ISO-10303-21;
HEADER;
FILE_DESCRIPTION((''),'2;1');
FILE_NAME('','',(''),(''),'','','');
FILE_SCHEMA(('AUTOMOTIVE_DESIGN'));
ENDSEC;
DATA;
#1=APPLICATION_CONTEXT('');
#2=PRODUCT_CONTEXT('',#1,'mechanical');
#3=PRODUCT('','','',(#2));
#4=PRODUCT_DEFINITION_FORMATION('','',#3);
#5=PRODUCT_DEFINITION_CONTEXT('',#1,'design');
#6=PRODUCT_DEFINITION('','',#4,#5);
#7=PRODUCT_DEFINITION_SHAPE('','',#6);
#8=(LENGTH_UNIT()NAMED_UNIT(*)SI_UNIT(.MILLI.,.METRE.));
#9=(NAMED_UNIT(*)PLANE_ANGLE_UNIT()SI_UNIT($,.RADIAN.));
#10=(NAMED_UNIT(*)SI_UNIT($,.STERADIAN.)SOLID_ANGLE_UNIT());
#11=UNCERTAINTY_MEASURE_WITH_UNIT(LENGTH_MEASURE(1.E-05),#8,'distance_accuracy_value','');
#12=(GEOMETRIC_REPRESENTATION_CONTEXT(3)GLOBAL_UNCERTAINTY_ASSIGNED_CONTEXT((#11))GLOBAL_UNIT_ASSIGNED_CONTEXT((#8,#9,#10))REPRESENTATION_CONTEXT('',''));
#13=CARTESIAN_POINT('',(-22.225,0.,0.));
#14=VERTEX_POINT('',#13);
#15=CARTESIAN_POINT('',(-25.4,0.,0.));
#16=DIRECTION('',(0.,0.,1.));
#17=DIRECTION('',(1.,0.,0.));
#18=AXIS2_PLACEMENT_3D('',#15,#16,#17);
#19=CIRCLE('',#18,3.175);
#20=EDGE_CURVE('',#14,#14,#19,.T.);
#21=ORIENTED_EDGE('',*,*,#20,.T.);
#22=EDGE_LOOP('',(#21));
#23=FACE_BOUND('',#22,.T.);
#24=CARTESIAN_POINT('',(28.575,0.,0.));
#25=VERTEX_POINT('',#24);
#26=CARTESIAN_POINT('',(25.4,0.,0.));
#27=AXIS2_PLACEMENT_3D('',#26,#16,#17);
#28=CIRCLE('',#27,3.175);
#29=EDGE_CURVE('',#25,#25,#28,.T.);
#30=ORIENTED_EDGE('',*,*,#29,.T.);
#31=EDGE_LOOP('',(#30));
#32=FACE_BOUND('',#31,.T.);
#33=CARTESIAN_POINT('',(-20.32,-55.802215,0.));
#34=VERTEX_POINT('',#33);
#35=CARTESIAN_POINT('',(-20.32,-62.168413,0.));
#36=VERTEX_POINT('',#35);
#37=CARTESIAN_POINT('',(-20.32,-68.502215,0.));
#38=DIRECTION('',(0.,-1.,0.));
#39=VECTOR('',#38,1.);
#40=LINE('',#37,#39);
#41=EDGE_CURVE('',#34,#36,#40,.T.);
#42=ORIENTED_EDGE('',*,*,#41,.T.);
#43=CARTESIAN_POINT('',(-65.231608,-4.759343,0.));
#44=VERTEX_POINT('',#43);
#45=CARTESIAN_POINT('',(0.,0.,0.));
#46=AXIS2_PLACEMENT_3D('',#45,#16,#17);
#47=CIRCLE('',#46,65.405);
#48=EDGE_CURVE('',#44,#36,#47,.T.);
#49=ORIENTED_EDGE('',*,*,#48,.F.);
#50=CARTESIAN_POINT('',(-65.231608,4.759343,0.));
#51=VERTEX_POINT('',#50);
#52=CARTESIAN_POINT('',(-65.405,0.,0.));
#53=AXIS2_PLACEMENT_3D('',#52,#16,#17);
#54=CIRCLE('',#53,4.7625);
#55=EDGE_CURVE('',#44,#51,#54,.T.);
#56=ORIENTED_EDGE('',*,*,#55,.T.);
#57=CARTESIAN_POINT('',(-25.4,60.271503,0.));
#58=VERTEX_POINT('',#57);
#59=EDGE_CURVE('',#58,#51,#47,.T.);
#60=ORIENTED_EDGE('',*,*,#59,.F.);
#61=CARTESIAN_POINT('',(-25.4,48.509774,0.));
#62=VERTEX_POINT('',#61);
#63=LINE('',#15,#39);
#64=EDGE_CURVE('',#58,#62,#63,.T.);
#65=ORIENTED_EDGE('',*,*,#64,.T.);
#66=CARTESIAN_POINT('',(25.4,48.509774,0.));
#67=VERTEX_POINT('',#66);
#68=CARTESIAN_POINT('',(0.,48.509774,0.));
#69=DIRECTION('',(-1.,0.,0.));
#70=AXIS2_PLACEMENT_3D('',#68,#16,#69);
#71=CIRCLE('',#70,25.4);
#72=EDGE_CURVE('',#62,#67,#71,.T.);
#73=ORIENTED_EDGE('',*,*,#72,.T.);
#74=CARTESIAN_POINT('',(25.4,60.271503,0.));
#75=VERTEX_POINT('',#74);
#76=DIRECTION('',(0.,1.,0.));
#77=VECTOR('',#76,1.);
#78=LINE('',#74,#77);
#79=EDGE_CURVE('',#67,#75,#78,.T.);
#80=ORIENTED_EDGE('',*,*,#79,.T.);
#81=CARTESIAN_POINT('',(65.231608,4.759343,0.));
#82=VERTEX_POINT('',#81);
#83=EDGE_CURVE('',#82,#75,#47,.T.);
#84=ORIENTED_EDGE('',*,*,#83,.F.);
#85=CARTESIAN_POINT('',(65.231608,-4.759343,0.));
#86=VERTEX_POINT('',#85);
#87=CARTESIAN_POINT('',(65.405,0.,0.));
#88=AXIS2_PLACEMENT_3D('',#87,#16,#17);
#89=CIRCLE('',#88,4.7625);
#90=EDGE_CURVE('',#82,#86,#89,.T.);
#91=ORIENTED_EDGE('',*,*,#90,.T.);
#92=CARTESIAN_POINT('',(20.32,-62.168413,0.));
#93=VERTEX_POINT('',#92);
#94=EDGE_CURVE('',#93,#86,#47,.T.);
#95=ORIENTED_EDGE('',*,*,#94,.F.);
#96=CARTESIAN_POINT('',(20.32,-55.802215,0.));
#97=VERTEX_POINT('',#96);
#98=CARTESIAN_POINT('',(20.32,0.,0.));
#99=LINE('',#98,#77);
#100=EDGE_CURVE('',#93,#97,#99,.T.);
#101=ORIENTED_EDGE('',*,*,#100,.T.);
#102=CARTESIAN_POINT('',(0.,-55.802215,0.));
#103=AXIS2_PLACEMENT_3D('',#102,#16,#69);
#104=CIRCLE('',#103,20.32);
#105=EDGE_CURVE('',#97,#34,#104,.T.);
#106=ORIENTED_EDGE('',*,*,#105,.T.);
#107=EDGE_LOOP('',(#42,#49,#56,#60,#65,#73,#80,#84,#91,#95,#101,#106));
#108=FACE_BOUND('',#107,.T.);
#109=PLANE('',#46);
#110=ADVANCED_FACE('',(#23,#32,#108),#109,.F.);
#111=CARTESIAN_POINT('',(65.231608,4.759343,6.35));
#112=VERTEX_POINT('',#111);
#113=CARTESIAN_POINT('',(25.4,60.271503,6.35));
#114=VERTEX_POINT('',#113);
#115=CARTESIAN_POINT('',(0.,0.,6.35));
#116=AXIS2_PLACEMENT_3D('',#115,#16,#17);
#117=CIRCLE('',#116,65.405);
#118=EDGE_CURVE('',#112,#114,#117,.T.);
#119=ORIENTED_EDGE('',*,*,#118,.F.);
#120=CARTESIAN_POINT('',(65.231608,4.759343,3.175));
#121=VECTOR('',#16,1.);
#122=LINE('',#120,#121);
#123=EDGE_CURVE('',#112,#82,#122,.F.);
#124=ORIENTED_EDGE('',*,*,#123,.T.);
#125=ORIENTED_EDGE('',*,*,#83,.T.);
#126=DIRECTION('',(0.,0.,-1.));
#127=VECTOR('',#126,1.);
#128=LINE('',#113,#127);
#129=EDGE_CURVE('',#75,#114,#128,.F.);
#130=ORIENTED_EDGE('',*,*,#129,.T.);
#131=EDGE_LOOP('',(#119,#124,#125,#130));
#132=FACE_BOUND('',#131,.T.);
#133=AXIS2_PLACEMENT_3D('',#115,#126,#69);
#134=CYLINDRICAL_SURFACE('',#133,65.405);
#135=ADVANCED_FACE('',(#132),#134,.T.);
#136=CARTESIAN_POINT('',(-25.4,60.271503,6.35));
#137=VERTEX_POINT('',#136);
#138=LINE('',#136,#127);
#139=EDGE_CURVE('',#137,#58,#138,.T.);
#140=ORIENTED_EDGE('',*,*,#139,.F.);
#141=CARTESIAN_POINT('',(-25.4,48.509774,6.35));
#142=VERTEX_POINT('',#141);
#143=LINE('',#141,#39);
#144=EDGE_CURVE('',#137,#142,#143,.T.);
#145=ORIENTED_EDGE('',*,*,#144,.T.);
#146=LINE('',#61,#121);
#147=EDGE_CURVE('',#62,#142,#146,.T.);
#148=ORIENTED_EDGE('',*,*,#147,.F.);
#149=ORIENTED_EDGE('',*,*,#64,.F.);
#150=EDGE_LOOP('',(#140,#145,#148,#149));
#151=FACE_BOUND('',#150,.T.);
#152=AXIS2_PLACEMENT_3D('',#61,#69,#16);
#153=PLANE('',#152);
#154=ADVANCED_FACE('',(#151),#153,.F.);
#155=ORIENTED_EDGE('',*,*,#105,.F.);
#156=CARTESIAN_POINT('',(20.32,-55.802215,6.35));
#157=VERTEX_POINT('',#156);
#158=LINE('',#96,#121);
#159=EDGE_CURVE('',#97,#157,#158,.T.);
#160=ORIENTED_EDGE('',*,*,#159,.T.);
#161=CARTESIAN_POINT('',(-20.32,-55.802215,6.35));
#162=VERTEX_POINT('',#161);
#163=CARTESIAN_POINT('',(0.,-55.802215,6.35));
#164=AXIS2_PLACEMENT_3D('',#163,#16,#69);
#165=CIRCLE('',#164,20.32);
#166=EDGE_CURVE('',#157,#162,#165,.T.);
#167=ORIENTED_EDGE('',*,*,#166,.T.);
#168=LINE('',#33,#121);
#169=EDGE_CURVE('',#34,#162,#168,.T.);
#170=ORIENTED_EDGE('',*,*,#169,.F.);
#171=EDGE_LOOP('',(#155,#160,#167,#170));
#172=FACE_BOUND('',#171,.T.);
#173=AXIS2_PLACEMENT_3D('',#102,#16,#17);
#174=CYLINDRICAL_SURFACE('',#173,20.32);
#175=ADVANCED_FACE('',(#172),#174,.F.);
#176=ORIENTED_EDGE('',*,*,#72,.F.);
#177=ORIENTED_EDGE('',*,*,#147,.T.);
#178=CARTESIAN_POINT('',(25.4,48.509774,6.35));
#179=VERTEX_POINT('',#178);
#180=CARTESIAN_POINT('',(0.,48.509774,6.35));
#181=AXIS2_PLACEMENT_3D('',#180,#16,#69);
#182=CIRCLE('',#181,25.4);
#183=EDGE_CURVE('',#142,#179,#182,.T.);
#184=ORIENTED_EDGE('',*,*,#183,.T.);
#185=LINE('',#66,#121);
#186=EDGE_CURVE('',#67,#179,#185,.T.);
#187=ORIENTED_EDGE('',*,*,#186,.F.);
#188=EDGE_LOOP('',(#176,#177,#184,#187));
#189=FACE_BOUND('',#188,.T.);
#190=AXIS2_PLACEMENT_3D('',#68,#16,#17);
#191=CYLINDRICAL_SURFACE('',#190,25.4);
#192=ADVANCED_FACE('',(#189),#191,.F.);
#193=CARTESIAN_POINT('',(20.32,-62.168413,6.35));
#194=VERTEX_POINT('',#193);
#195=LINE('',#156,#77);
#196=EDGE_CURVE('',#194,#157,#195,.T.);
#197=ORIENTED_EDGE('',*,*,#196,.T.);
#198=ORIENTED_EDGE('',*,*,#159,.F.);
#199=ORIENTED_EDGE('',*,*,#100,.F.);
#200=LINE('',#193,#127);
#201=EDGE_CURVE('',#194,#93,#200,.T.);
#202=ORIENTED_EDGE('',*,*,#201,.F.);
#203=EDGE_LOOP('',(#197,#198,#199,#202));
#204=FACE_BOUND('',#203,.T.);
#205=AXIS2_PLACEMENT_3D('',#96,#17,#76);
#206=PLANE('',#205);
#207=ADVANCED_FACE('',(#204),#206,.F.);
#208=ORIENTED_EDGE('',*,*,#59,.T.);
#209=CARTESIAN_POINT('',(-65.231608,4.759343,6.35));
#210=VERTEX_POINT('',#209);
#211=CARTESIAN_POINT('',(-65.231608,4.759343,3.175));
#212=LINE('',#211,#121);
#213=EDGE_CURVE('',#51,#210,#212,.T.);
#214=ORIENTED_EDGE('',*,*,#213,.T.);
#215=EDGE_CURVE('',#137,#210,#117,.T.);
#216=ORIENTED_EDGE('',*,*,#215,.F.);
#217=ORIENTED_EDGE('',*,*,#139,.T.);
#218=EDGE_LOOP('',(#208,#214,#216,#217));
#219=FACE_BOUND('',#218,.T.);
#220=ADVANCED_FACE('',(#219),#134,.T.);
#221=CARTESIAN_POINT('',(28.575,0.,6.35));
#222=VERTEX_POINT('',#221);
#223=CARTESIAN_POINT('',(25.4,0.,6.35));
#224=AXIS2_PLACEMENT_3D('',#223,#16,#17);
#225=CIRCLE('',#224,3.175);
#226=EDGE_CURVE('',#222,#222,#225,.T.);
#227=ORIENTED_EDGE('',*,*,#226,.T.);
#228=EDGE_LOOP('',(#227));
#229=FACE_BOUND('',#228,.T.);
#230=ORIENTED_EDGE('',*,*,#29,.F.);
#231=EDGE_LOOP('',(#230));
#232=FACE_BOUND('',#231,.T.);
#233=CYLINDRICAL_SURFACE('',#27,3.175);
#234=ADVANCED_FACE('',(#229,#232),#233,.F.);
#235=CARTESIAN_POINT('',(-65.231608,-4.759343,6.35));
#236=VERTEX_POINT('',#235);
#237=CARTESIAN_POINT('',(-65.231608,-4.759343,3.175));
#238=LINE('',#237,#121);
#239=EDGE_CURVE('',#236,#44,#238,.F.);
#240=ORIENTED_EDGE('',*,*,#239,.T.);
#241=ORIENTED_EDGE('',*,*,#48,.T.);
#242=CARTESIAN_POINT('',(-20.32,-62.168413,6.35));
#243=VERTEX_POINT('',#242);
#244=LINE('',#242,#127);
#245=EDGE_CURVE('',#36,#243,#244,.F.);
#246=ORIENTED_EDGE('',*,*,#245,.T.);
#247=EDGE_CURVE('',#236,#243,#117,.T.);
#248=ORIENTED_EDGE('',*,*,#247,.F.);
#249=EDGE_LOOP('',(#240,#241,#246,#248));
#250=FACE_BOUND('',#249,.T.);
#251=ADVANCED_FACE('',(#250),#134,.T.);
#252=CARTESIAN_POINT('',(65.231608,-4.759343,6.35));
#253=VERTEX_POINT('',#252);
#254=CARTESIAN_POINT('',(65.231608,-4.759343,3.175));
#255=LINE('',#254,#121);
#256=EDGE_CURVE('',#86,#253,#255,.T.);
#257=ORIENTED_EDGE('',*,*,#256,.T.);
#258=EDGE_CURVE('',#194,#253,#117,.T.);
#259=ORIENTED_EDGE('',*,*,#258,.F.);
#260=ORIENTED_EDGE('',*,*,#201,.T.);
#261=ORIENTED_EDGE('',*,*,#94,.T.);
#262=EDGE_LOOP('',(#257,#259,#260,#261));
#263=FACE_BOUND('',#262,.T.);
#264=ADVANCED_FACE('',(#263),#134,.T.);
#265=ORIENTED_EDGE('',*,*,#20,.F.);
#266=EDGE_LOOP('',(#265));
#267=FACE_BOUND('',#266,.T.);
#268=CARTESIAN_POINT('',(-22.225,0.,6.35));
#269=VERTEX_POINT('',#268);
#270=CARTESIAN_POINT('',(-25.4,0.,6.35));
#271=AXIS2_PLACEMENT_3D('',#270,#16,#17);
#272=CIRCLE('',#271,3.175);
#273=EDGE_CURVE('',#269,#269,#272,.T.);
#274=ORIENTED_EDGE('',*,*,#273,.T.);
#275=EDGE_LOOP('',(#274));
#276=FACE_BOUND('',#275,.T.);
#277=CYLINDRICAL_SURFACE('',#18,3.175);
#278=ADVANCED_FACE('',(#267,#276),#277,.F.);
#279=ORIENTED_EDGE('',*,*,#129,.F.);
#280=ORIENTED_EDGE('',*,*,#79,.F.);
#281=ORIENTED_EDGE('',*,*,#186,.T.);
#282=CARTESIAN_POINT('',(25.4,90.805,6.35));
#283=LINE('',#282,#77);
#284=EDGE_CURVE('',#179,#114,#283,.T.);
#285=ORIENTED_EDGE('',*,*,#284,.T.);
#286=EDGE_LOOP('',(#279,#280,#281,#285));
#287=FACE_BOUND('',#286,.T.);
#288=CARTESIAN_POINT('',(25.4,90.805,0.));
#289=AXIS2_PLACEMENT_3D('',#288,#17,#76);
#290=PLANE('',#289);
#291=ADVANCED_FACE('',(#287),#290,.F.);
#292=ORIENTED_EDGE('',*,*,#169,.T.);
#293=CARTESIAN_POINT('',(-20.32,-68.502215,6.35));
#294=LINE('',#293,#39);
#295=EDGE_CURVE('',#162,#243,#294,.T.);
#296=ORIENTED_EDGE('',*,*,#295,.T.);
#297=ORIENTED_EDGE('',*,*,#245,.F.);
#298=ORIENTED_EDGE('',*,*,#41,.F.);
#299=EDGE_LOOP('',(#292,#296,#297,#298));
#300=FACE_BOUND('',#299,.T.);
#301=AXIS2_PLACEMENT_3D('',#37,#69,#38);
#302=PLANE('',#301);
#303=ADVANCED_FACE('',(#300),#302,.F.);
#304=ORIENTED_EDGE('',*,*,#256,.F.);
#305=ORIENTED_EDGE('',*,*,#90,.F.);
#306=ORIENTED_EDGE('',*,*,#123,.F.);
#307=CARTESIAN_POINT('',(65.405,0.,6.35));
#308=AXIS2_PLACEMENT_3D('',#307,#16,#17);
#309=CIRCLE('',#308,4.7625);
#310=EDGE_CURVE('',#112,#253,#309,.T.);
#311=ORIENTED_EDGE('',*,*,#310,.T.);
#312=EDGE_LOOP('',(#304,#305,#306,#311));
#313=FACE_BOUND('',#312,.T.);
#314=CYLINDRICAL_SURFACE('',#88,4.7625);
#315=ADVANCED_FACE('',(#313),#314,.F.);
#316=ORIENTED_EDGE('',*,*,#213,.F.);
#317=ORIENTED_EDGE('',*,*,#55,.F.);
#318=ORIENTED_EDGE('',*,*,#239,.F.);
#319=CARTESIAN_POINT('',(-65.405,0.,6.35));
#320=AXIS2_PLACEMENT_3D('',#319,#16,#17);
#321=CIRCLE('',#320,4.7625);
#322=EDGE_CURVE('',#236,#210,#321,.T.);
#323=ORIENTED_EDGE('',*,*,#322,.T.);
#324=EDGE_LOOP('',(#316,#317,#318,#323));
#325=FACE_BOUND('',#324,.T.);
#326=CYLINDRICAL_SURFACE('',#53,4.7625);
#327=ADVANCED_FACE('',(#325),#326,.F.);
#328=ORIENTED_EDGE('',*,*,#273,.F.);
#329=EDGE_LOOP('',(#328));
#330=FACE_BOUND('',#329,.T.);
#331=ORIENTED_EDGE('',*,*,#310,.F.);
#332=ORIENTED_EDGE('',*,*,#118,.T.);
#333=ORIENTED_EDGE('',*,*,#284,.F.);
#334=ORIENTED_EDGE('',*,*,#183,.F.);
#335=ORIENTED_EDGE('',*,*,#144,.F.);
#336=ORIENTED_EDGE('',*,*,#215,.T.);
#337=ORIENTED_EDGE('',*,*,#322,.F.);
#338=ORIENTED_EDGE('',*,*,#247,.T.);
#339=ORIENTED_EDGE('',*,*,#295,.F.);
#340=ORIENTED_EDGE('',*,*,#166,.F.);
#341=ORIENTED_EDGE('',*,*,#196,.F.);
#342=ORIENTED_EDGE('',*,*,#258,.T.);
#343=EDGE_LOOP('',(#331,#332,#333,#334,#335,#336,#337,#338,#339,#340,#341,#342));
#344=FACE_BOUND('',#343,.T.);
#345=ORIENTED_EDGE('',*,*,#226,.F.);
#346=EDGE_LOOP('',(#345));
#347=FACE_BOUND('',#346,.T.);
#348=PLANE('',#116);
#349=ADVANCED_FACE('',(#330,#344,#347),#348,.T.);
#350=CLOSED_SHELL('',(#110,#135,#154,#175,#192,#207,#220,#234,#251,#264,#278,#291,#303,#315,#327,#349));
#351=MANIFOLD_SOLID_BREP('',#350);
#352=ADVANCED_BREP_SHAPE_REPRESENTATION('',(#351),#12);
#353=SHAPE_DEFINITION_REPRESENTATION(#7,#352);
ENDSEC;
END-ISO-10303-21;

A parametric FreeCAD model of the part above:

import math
import FreeCAD as App
import Part
import Sketcher
Q = App.Units.Quantity

doc = App.newDocument("Part")
params = doc.addObject("Spreadsheet::Sheet", "Params")
for row, (alias, value) in enumerate([
    ("sketch1_diameter", "5.15 in"),
    ("pad1_length", "0.25 in"),
    ("sketch2_radius", "1 in"),
    ("sketch2_radius2", "0.8 in"),
    ("sketch2_diameter", "0.25 in"),
    ("sketch2_diameter2", "0.375 in"),
    ("sketch2_height", "0.5 in"),
], start=1):
    params.set(f"A{row}", alias)
    params.set(f"B{row}", "=" + value)
    params.setAlias(f"B{row}", alias)

body = doc.addObject("PartDesign::Body", "Body")

sketch1 = doc.addObject("Sketcher::SketchObject", "Sketch")
body.addObject(sketch1)
sketch1.AttachmentSupport = (doc.XY_Plane, [""])
sketch1.MapMode = "FlatFace"
sketch1.addGeometry(Part.Circle(App.Vector(0, 0, 0), App.Vector(0, 0, 1), 65), False)
sketch1.addConstraint(Sketcher.Constraint("Coincident", 0, 3, -1, 1))
sketch1.addConstraint(Sketcher.Constraint("Diameter", 0, Q("5.15 in")))
sketch1.setExpression("Constraints[1]", "Params.sketch1_diameter")
pad1 = doc.addObject("PartDesign::Pad", "Pad")
body.addObject(pad1)
pad1.Profile = sketch1
pad1.setExpression("Length", "Params.pad1_length")

sketch2 = doc.addObject("Sketcher::SketchObject", "Sketch001")
body.addObject(sketch2)
sketch2.AttachmentSupport = (doc.XY_Plane, [""])
sketch2.MapMode = "FlatFace"
sketch2.AttachmentOffset = App.Placement(App.Vector(0, 0, 0.25 * 25.4), App.Rotation())
sketch2.addGeometry(Part.Circle(App.Vector(-65.4, 0, 0), App.Vector(0, 0, 1), 4.8), False)
sketch2.addGeometry(Part.Circle(App.Vector(65.4, 0, 0), App.Vector(0, 0, 1), 4.8), False)
sketch2.addGeometry(Part.Circle(App.Vector(25.4, 0, 0), App.Vector(0, 0, 1), 3.2), False)
sketch2.addGeometry(Part.Circle(App.Vector(-25.4, 0, 0), App.Vector(0, 0, 1), 3.2), False)
sketch2.addGeometry(Part.LineSegment(App.Vector(-25.4, 90.8, 0), App.Vector(-25.4, 48.5, 0)), False)
sketch2.addGeometry(Part.ArcOfCircle(Part.Circle(App.Vector(0, 48.5, 0), App.Vector(0, 0, 1), 25.4), math.radians(180), math.radians(360)), False)
sketch2.addGeometry(Part.LineSegment(App.Vector(25.4, 48.5, 0), App.Vector(25.4, 90.8, 0)), False)
sketch2.addGeometry(Part.LineSegment(App.Vector(25.4, 90.8, 0), App.Vector(-25.4, 90.8, 0)), False)
sketch2.addGeometry(Part.LineSegment(App.Vector(20.3, -68.5, 0), App.Vector(20.3, -55.8, 0)), False)
sketch2.addGeometry(Part.ArcOfCircle(Part.Circle(App.Vector(0, -55.8, 0), App.Vector(0, 0, 1), 20.3), math.radians(0), math.radians(180)), False)
sketch2.addGeometry(Part.LineSegment(App.Vector(-20.3, -55.8, 0), App.Vector(-20.3, -68.5, 0)), False)
sketch2.addGeometry(Part.LineSegment(App.Vector(-20.3, -68.5, 0), App.Vector(20.3, -68.5, 0)), False)
sketch2.addConstraint(Sketcher.Constraint("Tangent", 4, 2, 5, 1))
sketch2.addConstraint(Sketcher.Constraint("Tangent", 5, 2, 6, 1))
sketch2.addConstraint(Sketcher.Constraint("Coincident", 6, 2, 7, 1))
sketch2.addConstraint(Sketcher.Constraint("Coincident", 7, 2, 4, 1))
sketch2.addConstraint(Sketcher.Constraint("Tangent", 8, 2, 9, 1))
sketch2.addConstraint(Sketcher.Constraint("Tangent", 9, 2, 10, 1))
sketch2.addConstraint(Sketcher.Constraint("Coincident", 10, 2, 11, 1))
sketch2.addConstraint(Sketcher.Constraint("Coincident", 11, 2, 8, 1))
sketch2.addConstraint(Sketcher.Constraint("Vertical", 4))
sketch2.addConstraint(Sketcher.Constraint("Vertical", 6))
sketch2.addConstraint(Sketcher.Constraint("Horizontal", 7))
sketch2.addConstraint(Sketcher.Constraint("Vertical", 8))
sketch2.addConstraint(Sketcher.Constraint("Vertical", 10))
sketch2.addConstraint(Sketcher.Constraint("Horizontal", 11))
sketch2.addConstraint(Sketcher.Constraint("Equal", 0, 1))
sketch2.addConstraint(Sketcher.Constraint("Equal", 2, 3))
sketch2.addConstraint(Sketcher.Constraint("Symmetric", 0, 3, 1, 3, -1, 1))
sketch2.addConstraint(Sketcher.Constraint("Symmetric", 2, 3, 3, 3, -1, 1))
sketch2.addConstraint(Sketcher.Constraint("PointOnObject", 0, 3, -1))
sketch2.addConstraint(Sketcher.Constraint("PointOnObject", 2, 3, -1))
sketch2.addConstraint(Sketcher.Constraint("PointOnObject", 5, 3, -2))
sketch2.addConstraint(Sketcher.Constraint("PointOnObject", 9, 3, -2))
sketch2.addConstraint(Sketcher.Constraint("Vertical", 3, 3, 4, 2))
sketch2.addConstraint(Sketcher.Constraint("Radius", 5, Q("1 in")))
sketch2.addConstraint(Sketcher.Constraint("Radius", 9, Q("0.8 in")))
sketch2.addConstraint(Sketcher.Constraint("Diameter", 2, Q("0.25 in")))
sketch2.addConstraint(Sketcher.Constraint("Diameter", 0, Q("0.375 in")))
sketch2.addConstraint(Sketcher.Constraint("DistanceY", 8, 1, 8, 2, Q("0.5 in")))
sketch2.addConstraint(Sketcher.Constraint("DistanceX", 0, 3, 1, 3, Q("5.15 in")))
sketch2.addConstraint(Sketcher.Constraint("DistanceY", -1, 1, 6, 2, Q("3.575 in")))
sketch2.addConstraint(Sketcher.Constraint("DistanceY", 4, 2, 4, 1, 42.295226))
sketch2.addConstraint(Sketcher.Constraint("DistanceY", 9, 3, 5, 3, 104.311989))
sketch2.setExpression("Constraints[23]", "Params.sketch2_radius")
sketch2.setExpression("Constraints[24]", "Params.sketch2_radius2")
sketch2.setExpression("Constraints[25]", "Params.sketch2_diameter")
sketch2.setExpression("Constraints[26]", "Params.sketch2_diameter2")
sketch2.setExpression("Constraints[27]", "Params.sketch2_height")
pocket1 = doc.addObject("PartDesign::Pocket", "Pocket")
body.addObject(pocket1)
pocket1.Profile = sketch2
pocket1.Type = "ThroughAll"

doc.recompute()
